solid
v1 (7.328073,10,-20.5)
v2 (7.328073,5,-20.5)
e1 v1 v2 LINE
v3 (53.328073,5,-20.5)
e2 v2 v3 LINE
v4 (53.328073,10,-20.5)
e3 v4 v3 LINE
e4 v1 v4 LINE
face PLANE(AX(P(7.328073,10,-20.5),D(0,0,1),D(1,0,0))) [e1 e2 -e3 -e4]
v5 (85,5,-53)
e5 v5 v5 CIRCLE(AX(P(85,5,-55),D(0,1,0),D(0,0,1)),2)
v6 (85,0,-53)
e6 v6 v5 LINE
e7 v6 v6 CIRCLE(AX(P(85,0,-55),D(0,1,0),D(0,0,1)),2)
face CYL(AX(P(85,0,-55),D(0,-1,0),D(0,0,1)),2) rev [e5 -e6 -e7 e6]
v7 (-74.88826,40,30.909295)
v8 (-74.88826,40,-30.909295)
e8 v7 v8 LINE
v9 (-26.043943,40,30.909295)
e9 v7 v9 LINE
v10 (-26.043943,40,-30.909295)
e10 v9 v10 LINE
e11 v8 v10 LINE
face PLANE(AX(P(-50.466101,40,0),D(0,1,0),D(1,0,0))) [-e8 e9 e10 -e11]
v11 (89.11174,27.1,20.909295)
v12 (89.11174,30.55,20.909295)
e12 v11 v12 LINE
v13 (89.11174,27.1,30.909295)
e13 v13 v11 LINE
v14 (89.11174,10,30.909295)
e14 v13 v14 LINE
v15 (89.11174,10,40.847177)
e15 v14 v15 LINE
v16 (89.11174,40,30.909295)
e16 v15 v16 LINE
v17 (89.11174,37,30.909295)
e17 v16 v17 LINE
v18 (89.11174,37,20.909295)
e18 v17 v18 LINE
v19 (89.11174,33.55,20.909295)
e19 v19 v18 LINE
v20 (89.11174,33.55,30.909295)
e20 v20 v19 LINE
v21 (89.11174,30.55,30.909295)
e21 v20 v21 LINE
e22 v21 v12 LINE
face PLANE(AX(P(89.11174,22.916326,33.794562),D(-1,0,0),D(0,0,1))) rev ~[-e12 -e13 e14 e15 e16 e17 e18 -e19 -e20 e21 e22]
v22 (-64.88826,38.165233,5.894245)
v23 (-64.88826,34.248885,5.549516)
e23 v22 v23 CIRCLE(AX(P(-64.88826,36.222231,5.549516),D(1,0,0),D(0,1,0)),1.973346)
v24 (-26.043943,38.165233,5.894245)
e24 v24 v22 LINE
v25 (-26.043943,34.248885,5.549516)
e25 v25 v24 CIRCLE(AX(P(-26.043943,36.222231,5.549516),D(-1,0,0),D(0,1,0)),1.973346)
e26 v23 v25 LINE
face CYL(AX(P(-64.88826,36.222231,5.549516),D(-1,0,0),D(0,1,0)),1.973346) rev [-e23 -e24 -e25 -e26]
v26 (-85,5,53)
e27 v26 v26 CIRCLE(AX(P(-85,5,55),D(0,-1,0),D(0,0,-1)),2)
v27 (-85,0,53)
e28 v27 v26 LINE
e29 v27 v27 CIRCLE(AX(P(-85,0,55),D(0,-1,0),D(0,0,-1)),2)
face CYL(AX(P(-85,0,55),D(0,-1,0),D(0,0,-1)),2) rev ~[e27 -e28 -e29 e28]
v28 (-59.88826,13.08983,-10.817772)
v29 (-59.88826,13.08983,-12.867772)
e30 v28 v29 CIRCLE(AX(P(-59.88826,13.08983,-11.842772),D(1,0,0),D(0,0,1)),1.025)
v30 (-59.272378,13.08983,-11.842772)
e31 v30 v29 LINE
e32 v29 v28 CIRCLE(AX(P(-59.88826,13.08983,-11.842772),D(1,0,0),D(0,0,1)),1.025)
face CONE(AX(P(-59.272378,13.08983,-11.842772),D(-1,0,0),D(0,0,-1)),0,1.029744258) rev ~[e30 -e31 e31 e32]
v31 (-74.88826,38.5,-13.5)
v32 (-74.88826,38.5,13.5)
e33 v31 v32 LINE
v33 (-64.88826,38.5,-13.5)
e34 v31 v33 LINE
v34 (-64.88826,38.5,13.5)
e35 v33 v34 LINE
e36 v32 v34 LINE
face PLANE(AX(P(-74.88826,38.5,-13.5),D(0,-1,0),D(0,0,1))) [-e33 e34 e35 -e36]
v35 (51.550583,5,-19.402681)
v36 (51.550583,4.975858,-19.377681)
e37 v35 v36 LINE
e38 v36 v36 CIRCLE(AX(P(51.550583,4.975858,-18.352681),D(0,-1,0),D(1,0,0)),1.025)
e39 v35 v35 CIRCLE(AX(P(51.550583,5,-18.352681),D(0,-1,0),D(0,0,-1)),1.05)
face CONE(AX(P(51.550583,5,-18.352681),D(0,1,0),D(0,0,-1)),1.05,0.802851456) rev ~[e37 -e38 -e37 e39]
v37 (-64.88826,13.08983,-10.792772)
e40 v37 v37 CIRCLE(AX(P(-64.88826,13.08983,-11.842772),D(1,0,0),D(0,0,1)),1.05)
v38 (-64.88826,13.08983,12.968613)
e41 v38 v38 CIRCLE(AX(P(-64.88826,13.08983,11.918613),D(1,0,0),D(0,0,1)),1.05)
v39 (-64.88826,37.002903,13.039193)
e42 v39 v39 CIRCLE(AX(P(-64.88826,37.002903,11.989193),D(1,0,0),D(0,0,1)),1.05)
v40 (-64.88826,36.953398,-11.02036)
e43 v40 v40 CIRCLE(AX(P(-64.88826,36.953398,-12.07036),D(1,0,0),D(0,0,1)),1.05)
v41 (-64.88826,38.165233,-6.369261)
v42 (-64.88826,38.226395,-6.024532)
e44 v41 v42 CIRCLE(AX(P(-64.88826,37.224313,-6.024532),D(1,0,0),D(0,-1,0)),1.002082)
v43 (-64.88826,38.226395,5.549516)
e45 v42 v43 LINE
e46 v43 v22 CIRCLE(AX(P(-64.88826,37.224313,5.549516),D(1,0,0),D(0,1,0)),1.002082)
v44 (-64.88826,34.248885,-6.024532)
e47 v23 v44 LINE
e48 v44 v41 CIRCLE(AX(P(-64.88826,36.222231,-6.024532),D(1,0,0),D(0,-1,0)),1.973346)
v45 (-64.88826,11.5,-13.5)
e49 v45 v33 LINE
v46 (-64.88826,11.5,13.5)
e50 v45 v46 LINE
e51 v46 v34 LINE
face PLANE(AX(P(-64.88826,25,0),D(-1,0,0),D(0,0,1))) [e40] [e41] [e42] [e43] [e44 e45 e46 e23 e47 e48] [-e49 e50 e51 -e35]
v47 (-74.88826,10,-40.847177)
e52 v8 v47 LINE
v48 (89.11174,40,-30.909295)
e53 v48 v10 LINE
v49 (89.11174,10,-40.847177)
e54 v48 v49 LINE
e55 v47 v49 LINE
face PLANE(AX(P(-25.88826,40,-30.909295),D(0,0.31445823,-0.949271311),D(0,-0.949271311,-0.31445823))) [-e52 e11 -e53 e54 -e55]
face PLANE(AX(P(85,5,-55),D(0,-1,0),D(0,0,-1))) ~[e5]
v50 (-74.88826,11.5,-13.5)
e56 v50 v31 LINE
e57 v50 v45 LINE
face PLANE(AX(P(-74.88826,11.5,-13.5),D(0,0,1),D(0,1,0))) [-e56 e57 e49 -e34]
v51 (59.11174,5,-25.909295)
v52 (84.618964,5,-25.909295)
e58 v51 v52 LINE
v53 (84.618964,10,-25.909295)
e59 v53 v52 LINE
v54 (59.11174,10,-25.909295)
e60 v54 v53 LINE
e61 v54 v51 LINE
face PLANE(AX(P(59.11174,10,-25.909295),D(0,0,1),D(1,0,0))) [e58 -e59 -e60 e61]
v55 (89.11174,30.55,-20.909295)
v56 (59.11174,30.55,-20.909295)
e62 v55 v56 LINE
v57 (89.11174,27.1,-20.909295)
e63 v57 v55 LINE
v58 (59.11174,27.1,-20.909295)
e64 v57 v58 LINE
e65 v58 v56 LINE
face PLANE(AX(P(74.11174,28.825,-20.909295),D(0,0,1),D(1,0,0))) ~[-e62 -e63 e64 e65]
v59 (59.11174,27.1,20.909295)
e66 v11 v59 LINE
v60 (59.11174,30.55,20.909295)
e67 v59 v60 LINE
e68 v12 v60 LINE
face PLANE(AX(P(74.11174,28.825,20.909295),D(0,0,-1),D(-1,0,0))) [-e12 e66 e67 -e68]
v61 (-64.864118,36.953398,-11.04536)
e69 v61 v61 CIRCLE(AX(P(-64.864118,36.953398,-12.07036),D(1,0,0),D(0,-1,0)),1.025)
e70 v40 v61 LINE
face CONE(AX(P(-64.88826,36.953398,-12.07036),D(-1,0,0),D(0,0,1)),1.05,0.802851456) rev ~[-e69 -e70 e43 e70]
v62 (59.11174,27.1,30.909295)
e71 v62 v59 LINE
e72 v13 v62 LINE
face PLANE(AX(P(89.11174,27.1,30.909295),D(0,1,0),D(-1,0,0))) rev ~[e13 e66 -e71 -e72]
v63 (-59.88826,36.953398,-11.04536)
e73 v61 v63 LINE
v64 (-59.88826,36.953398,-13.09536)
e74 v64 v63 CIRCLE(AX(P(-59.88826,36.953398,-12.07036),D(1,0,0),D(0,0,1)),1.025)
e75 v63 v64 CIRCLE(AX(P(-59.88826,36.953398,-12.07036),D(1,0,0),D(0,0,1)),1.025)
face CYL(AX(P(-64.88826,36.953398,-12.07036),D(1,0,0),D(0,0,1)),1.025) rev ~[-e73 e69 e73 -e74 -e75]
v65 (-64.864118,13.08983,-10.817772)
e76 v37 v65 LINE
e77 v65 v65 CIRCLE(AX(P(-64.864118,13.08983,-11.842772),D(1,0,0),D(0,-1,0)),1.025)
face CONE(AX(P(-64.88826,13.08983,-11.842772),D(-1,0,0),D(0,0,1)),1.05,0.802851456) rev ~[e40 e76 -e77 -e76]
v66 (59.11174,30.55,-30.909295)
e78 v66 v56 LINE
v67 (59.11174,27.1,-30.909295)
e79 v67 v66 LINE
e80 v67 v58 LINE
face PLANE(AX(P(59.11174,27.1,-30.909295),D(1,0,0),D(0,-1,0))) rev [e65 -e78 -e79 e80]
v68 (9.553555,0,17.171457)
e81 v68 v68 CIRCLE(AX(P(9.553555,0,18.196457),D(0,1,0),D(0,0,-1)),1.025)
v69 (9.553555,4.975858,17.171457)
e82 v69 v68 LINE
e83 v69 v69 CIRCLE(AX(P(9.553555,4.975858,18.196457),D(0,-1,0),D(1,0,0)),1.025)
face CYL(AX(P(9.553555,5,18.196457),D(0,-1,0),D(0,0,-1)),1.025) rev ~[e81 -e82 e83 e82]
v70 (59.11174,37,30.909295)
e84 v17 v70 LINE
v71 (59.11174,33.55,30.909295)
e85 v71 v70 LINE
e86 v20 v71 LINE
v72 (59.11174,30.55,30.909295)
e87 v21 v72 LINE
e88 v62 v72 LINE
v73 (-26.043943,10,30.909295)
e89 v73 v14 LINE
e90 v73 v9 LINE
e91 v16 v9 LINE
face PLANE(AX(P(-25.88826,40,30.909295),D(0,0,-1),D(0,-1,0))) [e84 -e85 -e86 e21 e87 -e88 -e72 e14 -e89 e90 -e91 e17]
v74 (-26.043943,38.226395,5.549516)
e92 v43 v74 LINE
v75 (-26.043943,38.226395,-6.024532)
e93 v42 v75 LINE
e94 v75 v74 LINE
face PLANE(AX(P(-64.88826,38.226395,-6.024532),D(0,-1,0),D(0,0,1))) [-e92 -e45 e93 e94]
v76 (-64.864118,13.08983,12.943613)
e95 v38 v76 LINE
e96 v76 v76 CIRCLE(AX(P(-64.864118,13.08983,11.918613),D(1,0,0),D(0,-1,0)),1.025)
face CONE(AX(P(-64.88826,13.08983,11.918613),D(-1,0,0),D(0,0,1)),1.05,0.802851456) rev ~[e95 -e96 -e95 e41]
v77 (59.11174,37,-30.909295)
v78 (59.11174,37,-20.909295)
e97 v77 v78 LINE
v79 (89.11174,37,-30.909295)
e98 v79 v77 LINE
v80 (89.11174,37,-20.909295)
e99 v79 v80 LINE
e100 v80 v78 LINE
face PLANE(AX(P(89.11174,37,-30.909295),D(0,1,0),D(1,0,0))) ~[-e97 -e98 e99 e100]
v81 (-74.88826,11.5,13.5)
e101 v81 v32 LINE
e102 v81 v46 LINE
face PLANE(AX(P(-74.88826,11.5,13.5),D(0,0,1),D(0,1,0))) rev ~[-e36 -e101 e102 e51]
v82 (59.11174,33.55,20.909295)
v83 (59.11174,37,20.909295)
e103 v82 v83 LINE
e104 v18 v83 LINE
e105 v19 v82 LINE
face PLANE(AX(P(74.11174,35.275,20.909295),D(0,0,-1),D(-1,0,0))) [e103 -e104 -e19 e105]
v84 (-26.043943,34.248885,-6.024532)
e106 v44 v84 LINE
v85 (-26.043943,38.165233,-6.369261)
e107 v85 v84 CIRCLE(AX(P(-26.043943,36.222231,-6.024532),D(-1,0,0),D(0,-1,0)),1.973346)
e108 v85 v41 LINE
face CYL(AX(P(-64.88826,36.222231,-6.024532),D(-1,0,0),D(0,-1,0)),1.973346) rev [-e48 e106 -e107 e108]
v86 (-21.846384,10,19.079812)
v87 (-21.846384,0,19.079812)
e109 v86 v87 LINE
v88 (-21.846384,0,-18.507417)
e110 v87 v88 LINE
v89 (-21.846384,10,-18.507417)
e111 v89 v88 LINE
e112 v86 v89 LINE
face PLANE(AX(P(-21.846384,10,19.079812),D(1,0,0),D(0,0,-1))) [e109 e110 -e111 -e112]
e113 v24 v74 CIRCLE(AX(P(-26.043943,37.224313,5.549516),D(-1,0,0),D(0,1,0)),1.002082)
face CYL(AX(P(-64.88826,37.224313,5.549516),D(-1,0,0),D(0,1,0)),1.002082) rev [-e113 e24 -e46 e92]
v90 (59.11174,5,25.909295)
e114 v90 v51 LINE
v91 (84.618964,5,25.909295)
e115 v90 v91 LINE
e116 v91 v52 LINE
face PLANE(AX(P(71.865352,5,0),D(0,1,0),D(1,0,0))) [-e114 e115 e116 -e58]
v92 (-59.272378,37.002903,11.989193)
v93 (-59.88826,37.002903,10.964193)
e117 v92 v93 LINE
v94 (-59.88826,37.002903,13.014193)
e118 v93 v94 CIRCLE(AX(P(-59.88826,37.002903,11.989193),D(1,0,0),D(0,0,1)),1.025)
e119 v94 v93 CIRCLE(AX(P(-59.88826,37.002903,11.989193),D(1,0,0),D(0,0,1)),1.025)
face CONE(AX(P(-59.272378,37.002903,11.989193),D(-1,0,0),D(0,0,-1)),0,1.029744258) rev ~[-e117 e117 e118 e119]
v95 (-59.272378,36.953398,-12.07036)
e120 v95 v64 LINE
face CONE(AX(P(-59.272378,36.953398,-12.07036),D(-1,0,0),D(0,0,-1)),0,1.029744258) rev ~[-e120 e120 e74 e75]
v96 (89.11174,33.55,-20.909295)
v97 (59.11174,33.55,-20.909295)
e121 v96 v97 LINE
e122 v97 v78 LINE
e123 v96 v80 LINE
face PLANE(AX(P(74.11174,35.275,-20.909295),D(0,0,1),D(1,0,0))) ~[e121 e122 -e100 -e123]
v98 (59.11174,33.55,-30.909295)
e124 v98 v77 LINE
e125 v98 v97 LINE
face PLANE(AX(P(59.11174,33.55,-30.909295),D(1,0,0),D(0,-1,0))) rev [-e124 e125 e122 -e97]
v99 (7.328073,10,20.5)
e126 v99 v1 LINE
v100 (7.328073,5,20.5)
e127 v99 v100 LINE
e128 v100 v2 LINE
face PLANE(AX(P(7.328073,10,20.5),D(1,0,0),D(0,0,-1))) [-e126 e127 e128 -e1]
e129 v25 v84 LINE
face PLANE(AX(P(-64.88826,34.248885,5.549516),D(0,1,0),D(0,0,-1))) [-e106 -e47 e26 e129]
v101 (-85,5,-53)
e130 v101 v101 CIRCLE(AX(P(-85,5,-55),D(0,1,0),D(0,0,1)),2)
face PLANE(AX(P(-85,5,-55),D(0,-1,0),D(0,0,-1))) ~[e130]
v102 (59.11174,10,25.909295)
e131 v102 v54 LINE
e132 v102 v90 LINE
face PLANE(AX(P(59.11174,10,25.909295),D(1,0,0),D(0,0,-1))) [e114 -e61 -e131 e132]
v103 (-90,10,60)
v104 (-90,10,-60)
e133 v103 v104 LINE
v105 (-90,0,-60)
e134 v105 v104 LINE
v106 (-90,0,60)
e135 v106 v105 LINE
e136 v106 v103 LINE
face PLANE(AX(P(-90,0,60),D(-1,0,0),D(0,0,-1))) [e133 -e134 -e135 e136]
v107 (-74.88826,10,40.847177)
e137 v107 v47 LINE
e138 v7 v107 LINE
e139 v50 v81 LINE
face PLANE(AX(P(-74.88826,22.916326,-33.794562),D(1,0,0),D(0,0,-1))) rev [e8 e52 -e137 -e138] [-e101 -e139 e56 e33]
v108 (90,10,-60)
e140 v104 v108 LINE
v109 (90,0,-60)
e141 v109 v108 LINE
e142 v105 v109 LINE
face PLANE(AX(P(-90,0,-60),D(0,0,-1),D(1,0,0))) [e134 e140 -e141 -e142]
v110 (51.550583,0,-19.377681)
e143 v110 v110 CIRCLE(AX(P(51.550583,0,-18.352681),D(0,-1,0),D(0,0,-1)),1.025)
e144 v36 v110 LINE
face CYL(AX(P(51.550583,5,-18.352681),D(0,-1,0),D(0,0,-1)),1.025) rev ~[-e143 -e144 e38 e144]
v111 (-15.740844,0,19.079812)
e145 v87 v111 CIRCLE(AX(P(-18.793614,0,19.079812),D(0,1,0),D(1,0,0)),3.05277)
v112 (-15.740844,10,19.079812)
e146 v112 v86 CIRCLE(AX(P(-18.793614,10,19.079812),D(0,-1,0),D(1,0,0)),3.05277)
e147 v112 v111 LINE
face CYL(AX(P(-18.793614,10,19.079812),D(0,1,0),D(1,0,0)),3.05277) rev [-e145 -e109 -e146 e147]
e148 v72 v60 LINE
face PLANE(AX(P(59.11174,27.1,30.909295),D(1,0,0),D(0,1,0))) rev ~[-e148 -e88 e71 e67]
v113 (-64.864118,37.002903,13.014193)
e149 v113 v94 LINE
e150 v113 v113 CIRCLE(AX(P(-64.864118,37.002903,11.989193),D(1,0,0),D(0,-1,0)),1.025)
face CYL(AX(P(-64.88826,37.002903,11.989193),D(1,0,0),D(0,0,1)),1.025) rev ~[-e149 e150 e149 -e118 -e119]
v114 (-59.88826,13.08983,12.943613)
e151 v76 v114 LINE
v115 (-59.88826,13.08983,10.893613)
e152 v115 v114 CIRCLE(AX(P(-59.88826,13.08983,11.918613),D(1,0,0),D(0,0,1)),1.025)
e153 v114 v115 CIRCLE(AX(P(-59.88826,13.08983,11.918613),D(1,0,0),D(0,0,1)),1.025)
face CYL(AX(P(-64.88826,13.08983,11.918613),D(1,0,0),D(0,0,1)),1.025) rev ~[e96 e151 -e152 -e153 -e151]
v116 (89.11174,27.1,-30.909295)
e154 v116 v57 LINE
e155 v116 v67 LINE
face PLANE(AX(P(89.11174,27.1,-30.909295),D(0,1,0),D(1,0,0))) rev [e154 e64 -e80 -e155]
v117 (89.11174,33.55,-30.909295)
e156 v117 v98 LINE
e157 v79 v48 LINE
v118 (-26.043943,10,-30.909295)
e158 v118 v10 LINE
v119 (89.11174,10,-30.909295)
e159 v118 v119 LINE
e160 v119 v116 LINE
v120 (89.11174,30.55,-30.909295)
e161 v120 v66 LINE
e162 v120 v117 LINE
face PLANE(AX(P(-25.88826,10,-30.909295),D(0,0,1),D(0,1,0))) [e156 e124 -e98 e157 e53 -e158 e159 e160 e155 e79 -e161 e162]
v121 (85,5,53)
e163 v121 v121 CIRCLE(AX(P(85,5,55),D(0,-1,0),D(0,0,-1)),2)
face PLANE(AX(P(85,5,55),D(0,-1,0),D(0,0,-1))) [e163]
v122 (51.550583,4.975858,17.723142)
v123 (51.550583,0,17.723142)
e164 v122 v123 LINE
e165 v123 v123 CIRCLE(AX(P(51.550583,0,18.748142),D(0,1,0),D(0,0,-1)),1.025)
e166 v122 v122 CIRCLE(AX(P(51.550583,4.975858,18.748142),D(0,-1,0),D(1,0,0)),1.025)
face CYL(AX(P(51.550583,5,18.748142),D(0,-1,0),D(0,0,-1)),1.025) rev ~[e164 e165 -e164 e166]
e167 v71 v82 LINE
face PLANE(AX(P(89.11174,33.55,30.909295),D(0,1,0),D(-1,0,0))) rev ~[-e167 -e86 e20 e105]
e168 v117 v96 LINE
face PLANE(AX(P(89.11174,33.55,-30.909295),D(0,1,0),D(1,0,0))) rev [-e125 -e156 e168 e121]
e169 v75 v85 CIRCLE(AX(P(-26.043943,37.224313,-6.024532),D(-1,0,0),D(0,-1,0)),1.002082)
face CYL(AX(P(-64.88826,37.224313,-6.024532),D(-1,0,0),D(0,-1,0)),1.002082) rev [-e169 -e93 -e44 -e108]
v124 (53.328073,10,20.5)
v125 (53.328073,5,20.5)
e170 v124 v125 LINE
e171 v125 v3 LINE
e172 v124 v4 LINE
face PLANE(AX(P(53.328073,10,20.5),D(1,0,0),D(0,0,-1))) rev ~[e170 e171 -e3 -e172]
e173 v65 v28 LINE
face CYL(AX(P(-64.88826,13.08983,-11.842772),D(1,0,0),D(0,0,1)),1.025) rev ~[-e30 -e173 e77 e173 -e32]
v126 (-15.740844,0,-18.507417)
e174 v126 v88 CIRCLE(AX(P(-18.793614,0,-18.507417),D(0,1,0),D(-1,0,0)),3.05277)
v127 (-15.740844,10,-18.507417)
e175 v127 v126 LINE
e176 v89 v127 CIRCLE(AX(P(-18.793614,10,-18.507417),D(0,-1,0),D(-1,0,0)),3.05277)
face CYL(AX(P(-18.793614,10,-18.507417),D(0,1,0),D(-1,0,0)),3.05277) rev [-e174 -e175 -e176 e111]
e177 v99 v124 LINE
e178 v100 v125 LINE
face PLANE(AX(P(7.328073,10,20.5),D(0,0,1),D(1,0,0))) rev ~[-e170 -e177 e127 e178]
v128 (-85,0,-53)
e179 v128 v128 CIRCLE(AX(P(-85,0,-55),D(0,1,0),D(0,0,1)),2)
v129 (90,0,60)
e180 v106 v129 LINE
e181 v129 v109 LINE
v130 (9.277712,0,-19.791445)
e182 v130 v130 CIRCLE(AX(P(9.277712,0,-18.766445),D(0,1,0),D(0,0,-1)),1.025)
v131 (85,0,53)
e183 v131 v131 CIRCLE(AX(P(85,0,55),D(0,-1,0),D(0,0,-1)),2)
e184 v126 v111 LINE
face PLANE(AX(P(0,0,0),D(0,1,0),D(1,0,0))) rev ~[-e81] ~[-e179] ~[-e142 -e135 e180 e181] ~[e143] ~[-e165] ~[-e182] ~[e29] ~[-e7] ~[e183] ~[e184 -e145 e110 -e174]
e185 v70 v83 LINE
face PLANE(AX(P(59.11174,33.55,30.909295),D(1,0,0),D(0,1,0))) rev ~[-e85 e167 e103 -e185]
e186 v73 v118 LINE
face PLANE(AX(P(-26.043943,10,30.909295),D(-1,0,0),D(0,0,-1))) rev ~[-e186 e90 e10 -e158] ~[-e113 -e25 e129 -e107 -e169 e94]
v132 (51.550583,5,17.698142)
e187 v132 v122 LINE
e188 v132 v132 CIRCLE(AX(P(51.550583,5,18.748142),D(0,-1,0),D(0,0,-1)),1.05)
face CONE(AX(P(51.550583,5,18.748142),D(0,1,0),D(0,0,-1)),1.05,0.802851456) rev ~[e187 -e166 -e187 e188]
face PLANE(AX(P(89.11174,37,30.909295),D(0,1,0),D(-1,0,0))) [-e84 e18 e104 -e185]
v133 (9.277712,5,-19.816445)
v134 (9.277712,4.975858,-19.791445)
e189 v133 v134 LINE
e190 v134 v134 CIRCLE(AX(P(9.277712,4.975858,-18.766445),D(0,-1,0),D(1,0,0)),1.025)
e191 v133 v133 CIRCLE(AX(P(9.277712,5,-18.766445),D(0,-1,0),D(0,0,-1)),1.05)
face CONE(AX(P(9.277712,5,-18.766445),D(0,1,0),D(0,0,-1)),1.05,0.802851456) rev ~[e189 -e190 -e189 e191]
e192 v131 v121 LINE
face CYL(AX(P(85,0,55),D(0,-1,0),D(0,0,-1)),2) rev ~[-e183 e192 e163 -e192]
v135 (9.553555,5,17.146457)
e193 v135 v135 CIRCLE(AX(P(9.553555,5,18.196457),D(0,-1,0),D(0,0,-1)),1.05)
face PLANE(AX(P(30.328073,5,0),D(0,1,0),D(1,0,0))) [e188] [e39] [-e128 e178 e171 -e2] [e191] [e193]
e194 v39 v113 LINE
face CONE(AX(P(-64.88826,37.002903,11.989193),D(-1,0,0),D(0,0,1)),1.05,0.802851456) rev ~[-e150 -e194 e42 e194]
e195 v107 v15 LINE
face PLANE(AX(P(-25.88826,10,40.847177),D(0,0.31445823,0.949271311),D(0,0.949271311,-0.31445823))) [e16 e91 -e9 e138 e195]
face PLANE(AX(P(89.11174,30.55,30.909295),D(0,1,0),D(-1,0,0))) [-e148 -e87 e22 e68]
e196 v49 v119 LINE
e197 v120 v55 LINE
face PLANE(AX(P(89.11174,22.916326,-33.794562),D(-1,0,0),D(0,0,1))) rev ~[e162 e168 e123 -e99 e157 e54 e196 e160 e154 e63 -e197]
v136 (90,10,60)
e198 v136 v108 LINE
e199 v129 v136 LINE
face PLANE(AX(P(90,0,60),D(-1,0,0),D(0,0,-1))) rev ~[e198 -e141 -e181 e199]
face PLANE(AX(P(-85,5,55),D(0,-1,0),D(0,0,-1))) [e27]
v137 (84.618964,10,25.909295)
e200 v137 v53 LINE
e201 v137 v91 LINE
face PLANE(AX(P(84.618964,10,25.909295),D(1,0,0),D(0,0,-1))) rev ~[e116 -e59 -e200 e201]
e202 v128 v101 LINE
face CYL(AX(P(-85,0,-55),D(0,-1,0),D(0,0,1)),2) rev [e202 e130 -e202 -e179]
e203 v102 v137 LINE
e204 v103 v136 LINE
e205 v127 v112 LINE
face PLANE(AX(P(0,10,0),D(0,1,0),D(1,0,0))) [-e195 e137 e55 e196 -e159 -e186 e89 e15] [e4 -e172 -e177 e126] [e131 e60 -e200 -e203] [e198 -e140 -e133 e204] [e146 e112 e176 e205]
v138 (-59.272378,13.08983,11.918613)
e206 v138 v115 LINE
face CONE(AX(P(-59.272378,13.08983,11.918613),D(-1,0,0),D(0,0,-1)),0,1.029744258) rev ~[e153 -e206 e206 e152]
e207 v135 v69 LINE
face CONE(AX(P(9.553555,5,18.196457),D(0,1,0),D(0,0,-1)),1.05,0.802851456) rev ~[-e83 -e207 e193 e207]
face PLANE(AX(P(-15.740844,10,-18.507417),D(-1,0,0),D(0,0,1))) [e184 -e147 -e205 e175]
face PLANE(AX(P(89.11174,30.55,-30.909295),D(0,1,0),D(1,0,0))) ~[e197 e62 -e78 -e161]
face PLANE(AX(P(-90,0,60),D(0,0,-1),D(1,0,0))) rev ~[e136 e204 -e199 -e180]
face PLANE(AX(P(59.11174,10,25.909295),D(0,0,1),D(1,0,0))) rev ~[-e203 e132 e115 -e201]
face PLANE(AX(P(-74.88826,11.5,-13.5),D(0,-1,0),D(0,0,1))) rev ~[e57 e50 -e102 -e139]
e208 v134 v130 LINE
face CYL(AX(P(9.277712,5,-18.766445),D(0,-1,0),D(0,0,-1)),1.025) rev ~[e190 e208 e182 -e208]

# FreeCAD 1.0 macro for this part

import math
import FreeCAD as App
import Part
import Sketcher
from FreeCAD import Vector

doc = App.newDocument("Part")
body = doc.addObject("PartDesign::Body", "Body")

# Sketch on XZ plane
sketch1 = doc.addObject("Sketcher::SketchObject", "Sketch")
body.addObject(sketch1)
sketch1.AttachmentSupport = (doc.XZ_Plane, [""])
sketch1.MapMode = "FlatFace"
sketch1.addGeometry([
    Part.LineSegment(Vector(-90, -60, 0), Vector(-90, 60, 0)),
    Part.LineSegment(Vector(-90, 60, 0), Vector(90, 60, 0)),
    Part.LineSegment(Vector(90, 60, 0), Vector(90, -60, 0)),
    Part.LineSegment(Vector(90, -60, 0), Vector(-90, -60, 0)),
], False)
sketch1.addConstraint([
    Sketcher.Constraint("Coincident", 0, 2, 1, 1),
    Sketcher.Constraint("Coincident", 1, 2, 2, 1),
    Sketcher.Constraint("Coincident", 2, 2, 3, 1),
    Sketcher.Constraint("Coincident", 3, 2, 0, 1),
    Sketcher.Constraint("Vertical", 0),
    Sketcher.Constraint("Horizontal", 1),
    Sketcher.Constraint("Vertical", 2),
    Sketcher.Constraint("Horizontal", 3),
    Sketcher.Constraint("Symmetric", 0, 2, 2, 2, -1, 1),
    Sketcher.Constraint("DistanceX", 1, 1, 1, 2, 180.0),
    Sketcher.Constraint("DistanceY", 0, 1, 0, 2, 120.0),
])
pad1 = doc.addObject("PartDesign::Pad", "Pad")
body.addObject(pad1)
pad1.Profile = sketch1
pad1.Length = 10
pad1.Reversed = True

# Sketch on XZ plane
sketch2 = doc.addObject("Sketcher::SketchObject", "Sketch001")
body.addObject(sketch2)
sketch2.AttachmentSupport = (doc.XZ_Plane, [""])
sketch2.MapMode = "FlatFace"
sketch2.AttachmentOffset = App.Placement(Vector(0, 0, -10), App.Rotation())
sketch2.addGeometry([
    Part.LineSegment(Vector(-75, -31, 0), Vector(-75, 31, 0)),
    Part.LineSegment(Vector(-75, 31, 0), Vector(-26, 31, 0)),
    Part.LineSegment(Vector(-26, 31, 0), Vector(-26, -31, 0)),
    Part.LineSegment(Vector(-26, -31, 0), Vector(-75, -31, 0)),
], False)
sketch2.addConstraint([
    Sketcher.Constraint("Coincident", 0, 2, 1, 1),
    Sketcher.Constraint("Coincident", 1, 2, 2, 1),
    Sketcher.Constraint("Coincident", 2, 2, 3, 1),
    Sketcher.Constraint("Coincident", 3, 2, 0, 1),
    Sketcher.Constraint("Vertical", 0),
    Sketcher.Constraint("Horizontal", 1),
    Sketcher.Constraint("Vertical", 2),
    Sketcher.Constraint("Horizontal", 3),
    Sketcher.Constraint("DistanceY", 0, 1, 0, 2, 61.818589),
    Sketcher.Constraint("DistanceX", 1, 1, 1, 2, 48.844317),
    Sketcher.Constraint("DistanceX", 0, 2, -1, 1, 74.88826),
    Sketcher.Constraint("DistanceY", -1, 1, 0, 2, 30.909295),
])
pad2 = doc.addObject("PartDesign::Pad", "Pad001")
body.addObject(pad2)
pad2.Profile = sketch2
pad2.Length = 30
pad2.Reversed = True

# Sketch on YZ plane
sketch3 = doc.addObject("Sketcher::SketchObject", "Sketch002")
body.addObject(sketch3)
sketch3.AttachmentSupport = (doc.YZ_Plane, [""])
sketch3.MapMode = "FlatFace"
sketch3.AttachmentOffset = App.Placement(Vector(0, 0, -74.88826), App.Rotation())
sketch3.addGeometry([
    Part.LineSegment(Vector(38, -14, 0), Vector(12, -14, 0)),
    Part.LineSegment(Vector(12, -14, 0), Vector(12, 14, 0)),
    Part.LineSegment(Vector(12, 14, 0), Vector(38, 14, 0)),
    Part.LineSegment(Vector(38, 14, 0), Vector(38, -14, 0)),
], False)
sketch3.addConstraint([
    Sketcher.Constraint("Coincident", 0, 2, 1, 1),
    Sketcher.Constraint("Coincident", 1, 2, 2, 1),
    Sketcher.Constraint("Coincident", 2, 2, 3, 1),
    Sketcher.Constraint("Coincident", 3, 2, 0, 1),
    Sketcher.Constraint("Horizontal", 0),
    Sketcher.Constraint("Vertical", 1),
    Sketcher.Constraint("Horizontal", 2),
    Sketcher.Constraint("Vertical", 3),
    Sketcher.Constraint("Equal", 2, 1),
    Sketcher.Constraint("DistanceX", 0, 2, 0, 1, 27.0),
    Sketcher.Constraint("DistanceX", -1, 1, 0, 2, 11.5),
    Sketcher.Constraint("DistanceY", 0, 2, -1, 1, 13.5),
])
pocket1 = doc.addObject("PartDesign::Pocket", "Pocket")
body.addObject(pocket1)
pocket1.Profile = sketch3
pocket1.Length = 10
pocket1.Reversed = True

# Sketch on YZ plane
sketch4 = doc.addObject("Sketcher::SketchObject", "Sketch003")
body.addObject(sketch4)
sketch4.AttachmentSupport = (doc.YZ_Plane, [""])
sketch4.MapMode = "FlatFace"
sketch4.AttachmentOffset = App.Placement(Vector(0, 0, -64.88826), App.Rotation())
sketch4.addGeometry([
    Part.LineSegment(Vector(38.2, 5.5, 0), Vector(38.2, -6, 0)),
    Part.ArcOfCircle(Part.Circle(Vector(37.2, -6, 0), Vector(0, 0, 1), 1), math.radians(180), math.radians(360)),
    Part.LineSegment(Vector(36.2, -6, 0), Vector(36.2, 5.5, 0)),
    Part.ArcOfCircle(Part.Circle(Vector(37.2, 5.5, 0), Vector(0, 0, 1), 1), math.radians(0), math.radians(180)),
], False)
sketch4.addConstraint([
    Sketcher.Constraint("Tangent", 0, 2, 1, 2),
    Sketcher.Constraint("Tangent", 1, 1, 2, 1),
    Sketcher.Constraint("Tangent", 2, 2, 3, 2),
    Sketcher.Constraint("Tangent", 3, 1, 0, 1),
    Sketcher.Constraint("Vertical", 0),
    Sketcher.Constraint("Vertical", 2),
    Sketcher.Constraint("Radius", 1, 1.002082),
    Sketcher.Constraint("DistanceY", 0, 2, 0, 1, 11.574048),
    Sketcher.Constraint("DistanceY", 1, 3, -1, 1, 6.024532),
    Sketcher.Constraint("DistanceX", -1, 1, 1, 1, 36.222231),
])
pocket2 = doc.addObject("PartDesign::Pocket", "Pocket001")
body.addObject(pocket2)
pocket2.Profile = sketch4
pocket2.Type = "ThroughAll"
pocket2.Reversed = True

# Sketch on YZ plane
sketch5 = doc.addObject("Sketcher::SketchObject", "Sketch004")
body.addObject(sketch5)
sketch5.AttachmentSupport = (doc.YZ_Plane, [""])
sketch5.MapMode = "FlatFace"
sketch5.AttachmentOffset = App.Placement(Vector(0, 0, -64.88826), App.Rotation())
sketch5.addGeometry([
    Part.Circle(Vector(37, -12.1, 0), Vector(0, 0, 1), 1),
    Part.Circle(Vector(37, 12, 0), Vector(0, 0, 1), 1),
    Part.Circle(Vector(13.1, 11.9, 0), Vector(0, 0, 1), 1),
    Part.Circle(Vector(13.1, -11.8, 0), Vector(0, 0, 1), 1),
], False)
sketch5.addConstraint([
    Sketcher.Constraint("Equal", 0, 1),
    Sketcher.Constraint("Equal", 1, 2),
    Sketcher.Constraint("Equal", 2, 3),
    Sketcher.Constraint("Vertical", 2, 3, 3, 3),
    Sketcher.Constraint("Diameter", 0, 2.05),
    Sketcher.Constraint("DistanceY", 0, 3, -1, 1, 12.07036),
    Sketcher.Constraint("DistanceX", -1, 1, 2, 3, 13.08983),
    Sketcher.Constraint("DistanceY", 3, 3, -1, 1, 11.842772),
    Sketcher.Constraint("DistanceY", 2, 3, 1, 3, 0.07058),
    Sketcher.Constraint("DistanceX", -1, 1, 0, 3, 36.953398),
    Sketcher.Constraint("DistanceX", -1, 1, 1, 3, 37.002903),
    Sketcher.Constraint("DistanceY", -1, 1, 1, 3, 11.989193),
])
doc.recompute()
hole = doc.addObject("PartDesign::Hole", "Hole")
body.addObject(hole)
hole.Profile = sketch5
hole.ThreadType = "None"
hole.Diameter = 2.05
hole.DepthType = "Dimension"
hole.Depth = 5
hole.DrillPoint = "Angled"
hole.DrillPointAngle = 118
hole.HoleCutType = "Countersink"
hole.HoleCutDiameter = 2.1
hole.HoleCutCountersinkAngle = 92
hole.Reversed = True

# Sketch on XZ plane
sketch6 = doc.addObject("Sketcher::SketchObject", "Sketch005")
body.addObject(sketch6)
sketch6.AttachmentSupport = (doc.XZ_Plane, [""])
sketch6.MapMode = "FlatFace"
sketch6.AttachmentOffset = App.Placement(Vector(0, 0, -10), App.Rotation())
sketch6.addGeometry([
    Part.LineSegment(Vector(-21.8, -18.5, 0), Vector(-21.8, 19.1, 0)),
    Part.ArcOfCircle(Part.Circle(Vector(-18.8, 19.1, 0), Vector(0, 0, 1), 3.1), math.radians(0), math.radians(180)),
    Part.LineSegment(Vector(-15.7, 19.1, 0), Vector(-15.7, -18.5, 0)),
    Part.ArcOfCircle(Part.Circle(Vector(-18.8, -18.5, 0), Vector(0, 0, 1), 3.1), math.radians(180), math.radians(360)),
], False)
sketch6.addConstraint([
    Sketcher.Constraint("Tangent", 0, 2, 1, 2),
    Sketcher.Constraint("Tangent", 1, 1, 2, 1),
    Sketcher.Constraint("Tangent", 2, 2, 3, 2),
    Sketcher.Constraint("Tangent", 3, 1, 0, 1),
    Sketcher.Constraint("Vertical", 0),
    Sketcher.Constraint("Vertical", 2),
    Sketcher.Constraint("Radius", 1, 3.05277),
    Sketcher.Constraint("DistanceY", 0, 1, 0, 2, 37.587229),
    Sketcher.Constraint("DistanceY", -1, 1, 1, 3, 19.079812),
    Sketcher.Constraint("DistanceX", 1, 3, -1, 1, 18.793614),
])
pocket3 = doc.addObject("PartDesign::Pocket", "Pocket002")
body.addObject(pocket3)
pocket3.Profile = sketch6
pocket3.Type = "ThroughAll"
pocket3.Reversed = True

# Sketch on YZ plane
sketch7 = doc.addObject("Sketcher::SketchObject", "Sketch006")
body.addObject(sketch7)
sketch7.AttachmentSupport = (doc.YZ_Plane, [""])
sketch7.MapMode = "FlatFace"
sketch7.AttachmentOffset = App.Placement(Vector(0, 0, -74.88826), App.Rotation())
sketch7.addGeometry([
    Part.LineSegment(Vector(40, 31, 0), Vector(10, 31, 0)),
    Part.LineSegment(Vector(10, 31, 0), Vector(10, 41, 0)),
    Part.LineSegment(Vector(10, 41, 0), Vector(40, 31, 0)),
], False)
sketch7.addConstraint([
    Sketcher.Constraint("Coincident", 0, 2, 1, 1),
    Sketcher.Constraint("Coincident", 1, 2, 2, 1),
    Sketcher.Constraint("Coincident", 2, 2, 0, 1),
    Sketcher.Constraint("Horizontal", 0),
    Sketcher.Constraint("Vertical", 1),
    Sketcher.Constraint("DistanceX", 0, 2, 0, 1, 30.0),
    Sketcher.Constraint("DistanceX", -1, 1, 0, 2, 10.0),
    Sketcher.Constraint("Distance", 2, 31.603188),
    Sketcher.Constraint("DistanceY", -1, 1, 0, 2, 30.909295),
])
pad3 = doc.addObject("PartDesign::Pad", "Pad002")
body.addObject(pad3)
pad3.Profile = sketch7
pad3.Length = 49
doc.recompute()

mirrored = doc.addObject("PartDesign::Mirrored", "Mirrored")
body.addObject(mirrored)
mirrored.Originals = [pad3]
mirrored.MirrorPlane = (doc.XY_Plane, [""])
body.Tip = mirrored

# Sketch on XZ plane
sketch8 = doc.addObject("Sketcher::SketchObject", "Sketch007")
body.addObject(sketch8)
sketch8.AttachmentSupport = (doc.XZ_Plane, [""])
sketch8.MapMode = "FlatFace"
sketch8.AttachmentOffset = App.Placement(Vector(0, 0, -10), App.Rotation())
sketch8.addGeometry([
    Part.LineSegment(Vector(7, -20, 0), Vector(7, 20, 0)),
    Part.LineSegment(Vector(7, 20, 0), Vector(53, 20, 0)),
    Part.LineSegment(Vector(53, 20, 0), Vector(53, -20, 0)),
    Part.LineSegment(Vector(53, -20, 0), Vector(7, -20, 0)),
], False)
sketch8.addConstraint([
    Sketcher.Constraint("Coincident", 0, 2, 1, 1),
    Sketcher.Constraint("Coincident", 1, 2, 2, 1),
    Sketcher.Constraint("Coincident", 2, 2, 3, 1),
    Sketcher.Constraint("Coincident", 3, 2, 0, 1),
    Sketcher.Constraint("Vertical", 0),
    Sketcher.Constraint("Horizontal", 1),
    Sketcher.Constraint("Vertical", 2),
    Sketcher.Constraint("Horizontal", 3),
    Sketcher.Constraint("DistanceX", 1, 1, 1, 2, 46.0),
    Sketcher.Constraint("DistanceY", 0, 1, 0, 2, 41.0),
    Sketcher.Constraint("DistanceY", -1, 1, 0, 2, 20.5),
    Sketcher.Constraint("DistanceX", -1, 1, 0, 2, 7.328073),
])
pocket4 = doc.addObject("PartDesign::Pocket", "Pocket003")
body.addObject(pocket4)
pocket4.Profile = sketch8
pocket4.Length = 5
pocket4.Reversed = True

# Sketch on XZ plane
sketch9 = doc.addObject("Sketcher::SketchObject", "Sketch008")
body.addObject(sketch9)
sketch9.AttachmentSupport = (doc.XZ_Plane, [""])
sketch9.MapMode = "FlatFace"
sketch9.AttachmentOffset = App.Placement(Vector(0, 0, -5), App.Rotation())
sketch9.addGeometry([
    Part.Circle(Vector(9.6, 18.2, 0), Vector(0, 0, 1), 1),
    Part.Circle(Vector(9.3, -18.8, 0), Vector(0, 0, 1), 1),
    Part.Circle(Vector(51.6, -18.4, 0), Vector(0, 0, 1), 1),
    Part.Circle(Vector(51.6, 18.7, 0), Vector(0, 0, 1), 1),
], False)
sketch9.addConstraint([
    Sketcher.Constraint("Equal", 0, 1),
    Sketcher.Constraint("Equal", 1, 2),
    Sketcher.Constraint("Equal", 2, 3),
    Sketcher.Constraint("Vertical", 2, 3, 3, 3),
    Sketcher.Constraint("Diameter", 0, 2.05),
    Sketcher.Constraint("DistanceY", 1, 3, 0, 3, 36.962902),
    Sketcher.Constraint("DistanceX", -1, 1, 1, 3, 9.277712),
    Sketcher.Constraint("DistanceY", 2, 3, -1, 1, 18.352681),
    Sketcher.Constraint("DistanceY", -1, 1, 3, 3, 18.748142),
    Sketcher.Constraint("DistanceX", 1, 3, 2, 3, 42.272871),
    Sketcher.Constraint("DistanceX", 0, 3, 2, 3, 41.997028),
    Sketcher.Constraint("DistanceY", -1, 1, 0, 3, 18.196457),
])
doc.recompute()
hole2 = doc.addObject("PartDesign::Hole", "Hole001")
body.addObject(hole2)
hole2.Profile = sketch9
hole2.ThreadType = "None"
hole2.Diameter = 2.05
hole2.DepthType = "Dimension"
hole2.Depth = 5
hole2.DrillPoint = "Angled"
hole2.DrillPointAngle = 118
hole2.HoleCutType = "Countersink"
hole2.HoleCutDiameter = 2.1
hole2.HoleCutCountersinkAngle = 92
hole2.Reversed = True

# Sketch on YZ plane
sketch10 = doc.addObject("Sketcher::SketchObject", "Sketch009")
body.addObject(sketch10)
sketch10.AttachmentSupport = (doc.YZ_Plane, [""])
sketch10.MapMode = "FlatFace"
sketch10.AttachmentOffset = App.Placement(Vector(0, 0, -25.88826), App.Rotation())
sketch10.addGeometry([
    Part.LineSegment(Vector(10, -31, 0), Vector(10, -41, 0)),
    Part.LineSegment(Vector(10, -41, 0), Vector(40, -31, 0)),
    Part.LineSegment(Vector(40, -31, 0), Vector(10, -31, 0)),
], False)
sketch10.addConstraint([
    Sketcher.Constraint("Coincident", 0, 2, 1, 1),
    Sketcher.Constraint("Coincident", 1, 2, 2, 1),
    Sketcher.Constraint("Coincident", 2, 2, 0, 1),
    Sketcher.Constraint("Vertical", 0),
    Sketcher.Constraint("Horizontal", 2),
    Sketcher.Constraint("DistanceX", 2, 2, 2, 1, 30.0),
    Sketcher.Constraint("DistanceX", -1, 1, 0, 2, 10.0),
    Sketcher.Constraint("Distance", 1, 31.603188),
    Sketcher.Constraint("DistanceY", 0, 2, -1, 1, 40.847177),
])
pad4 = doc.addObject("PartDesign::Pad", "Pad003")
body.addObject(pad4)
pad4.Profile = sketch10
pad4.Length = 115

# Sketch on YZ plane
sketch11 = doc.addObject("Sketcher::SketchObject", "Sketch010")
body.addObject(sketch11)
sketch11.AttachmentSupport = (doc.YZ_Plane, [""])
sketch11.MapMode = "FlatFace"
sketch11.AttachmentOffset = App.Placement(Vector(0, 0, -25.88826), App.Rotation())
sketch11.addGeometry([
    Part.LineSegment(Vector(10, 41, 0), Vector(10, 31, 0)),
    Part.LineSegment(Vector(10, 31, 0), Vector(40, 31, 0)),
    Part.LineSegment(Vector(40, 31, 0), Vector(10, 41, 0)),
], False)
sketch11.addConstraint([
    Sketcher.Constraint("Coincident", 0, 2, 1, 1),
    Sketcher.Constraint("Coincident", 1, 2, 2, 1),
    Sketcher.Constraint("Coincident", 2, 2, 0, 1),
    Sketcher.Constraint("Vertical", 0),
    Sketcher.Constraint("Horizontal", 1),
    Sketcher.Constraint("DistanceX", 1, 1, 1, 2, 30.0),
    Sketcher.Constraint("DistanceX", -1, 1, 0, 2, 10.0),
    Sketcher.Constraint("Distance", 2, 31.603188),
    Sketcher.Constraint("DistanceY", -1, 1, 0, 2, 30.909295),
])
pad5 = doc.addObject("PartDesign::Pad", "Pad004")
body.addObject(pad5)
pad5.Profile = sketch11
pad5.Length = 115

# Sketch on XY plane
sketch12 = doc.addObject("Sketcher::SketchObject", "Sketch011")
body.addObject(sketch12)
sketch12.AttachmentSupport = (doc.XY_Plane, [""])
sketch12.MapMode = "FlatFace"
sketch12.AttachmentOffset = App.Placement(Vector(0, 0, 30.909295), App.Rotation())
sketch12.addGeometry([
    Part.LineSegment(Vector(89.1, 37, 0), Vector(89.1, 33.5, 0)),  # 0
    Part.LineSegment(Vector(89.1, 33.5, 0), Vector(59.1, 33.5, 0)),  # 1
    Part.LineSegment(Vector(59.1, 33.5, 0), Vector(59.1, 37, 0)),  # 2
    Part.LineSegment(Vector(59.1, 37, 0), Vector(89.1, 37, 0)),  # 3
    Part.LineSegment(Vector(89.1, 30.6, 0), Vector(89.1, 27.1, 0)),  # 4
    Part.LineSegment(Vector(89.1, 27.1, 0), Vector(59.1, 27.1, 0)),  # 5
    Part.LineSegment(Vector(59.1, 27.1, 0), Vector(59.1, 30.6, 0)),  # 6
    Part.LineSegment(Vector(59.1, 30.6, 0), Vector(89.1, 30.6, 0)),  # 7
], False)
sketch12.addConstraint([
    Sketcher.Constraint("Coincident", 0, 2, 1, 1),
    Sketcher.Constraint("Coincident", 1, 2, 2, 1),
    Sketcher.Constraint("Coincident", 2, 2, 3, 1),
    Sketcher.Constraint("Coincident", 3, 2, 0, 1),
    Sketcher.Constraint("Coincident", 4, 2, 5, 1),
    Sketcher.Constraint("Coincident", 5, 2, 6, 1),
    Sketcher.Constraint("Coincident", 6, 2, 7, 1),
    Sketcher.Constraint("Coincident", 7, 2, 4, 1),
    Sketcher.Constraint("Vertical", 0),
    Sketcher.Constraint("Horizontal", 1),
    Sketcher.Constraint("Vertical", 2),
    Sketcher.Constraint("Horizontal", 3),
    Sketcher.Constraint("Vertical", 4),
    Sketcher.Constraint("Horizontal", 5),
    Sketcher.Constraint("Vertical", 6),
    Sketcher.Constraint("Horizontal", 7),
    Sketcher.Constraint("Vertical", 3, 2, 4, 2),
    Sketcher.Constraint("Vertical", 2, 2, 5, 2),
    Sketcher.Constraint("Equal", 2, 4),
    Sketcher.Constraint("DistanceX", 1, 2, 1, 1, 30.0),
    Sketcher.Constraint("DistanceY", -1, 1, 2, 2, 37.0),
    Sketcher.Constraint("DistanceY", 6, 2, 1, 2, 3.0),
    Sketcher.Constraint("DistanceY", 0, 2, 0, 1, 3.45),
    Sketcher.Constraint("DistanceX", -1, 1, 0, 2, 89.11174),
])
pad6 = doc.addObject("PartDesign::Pad", "Pad005")
body.addObject(pad6)
pad6.Profile = sketch12
pad6.Length = 10
pad6.Reversed = True
doc.recompute()

mirrored2 = doc.addObject("PartDesign::Mirrored", "Mirrored001")
body.addObject(mirrored2)
mirrored2.Originals = [pad6]
mirrored2.MirrorPlane = (doc.XY_Plane, [""])
body.Tip = mirrored2

# Sketch on XZ plane
sketch13 = doc.addObject("Sketcher::SketchObject", "Sketch012")
body.addObject(sketch13)
sketch13.AttachmentSupport = (doc.XZ_Plane, [""])
sketch13.MapMode = "FlatFace"
sketch13.addGeometry(Part.Circle(Vector(-85, 55, 0), Vector(0, 0, 1), 2), False)
sketch13.addConstraint([
    Sketcher.Constraint("Diameter", 0, 4.0),
    Sketcher.Constraint("DistanceX", 0, 3, -1, 1, 85.0),
    Sketcher.Constraint("DistanceY", -1, 1, 0, 3, 55.0),
])
pocket5 = doc.addObject("PartDesign::Pocket", "Pocket004")
body.addObject(pocket5)
pocket5.Profile = sketch13
pocket5.Length = 5

# Sketch on XZ plane
sketch14 = doc.addObject("Sketcher::SketchObject", "Sketch013")
body.addObject(sketch14)
sketch14.AttachmentSupport = (doc.XZ_Plane, [""])
sketch14.MapMode = "FlatFace"
sketch14.addGeometry(Part.Circle(Vector(85, 55, 0), Vector(0, 0, 1), 2), False)
sketch14.addConstraint([
    Sketcher.Constraint("Diameter", 0, 4.0),
    Sketcher.Constraint("DistanceX", -1, 1, 0, 3, 85.0),
    Sketcher.Constraint("DistanceY", -1, 1, 0, 3, 55.0),
])
pocket6 = doc.addObject("PartDesign::Pocket", "Pocket005")
body.addObject(pocket6)
pocket6.Profile = sketch14
pocket6.Length = 5
doc.recompute()

mirrored3 = doc.addObject("PartDesign::Mirrored", "Mirrored002")
body.addObject(mirrored3)
mirrored3.Originals = [pocket5, pocket6]
mirrored3.MirrorPlane = (doc.XY_Plane, [""])
body.Tip = mirrored3

# Sketch on XZ plane
sketch15 = doc.addObject("Sketcher::SketchObject", "Sketch014")
body.addObject(sketch15)
sketch15.AttachmentSupport = (doc.XZ_Plane, [""])
sketch15.MapMode = "FlatFace"
sketch15.AttachmentOffset = App.Placement(Vector(0, 0, -10), App.Rotation())
sketch15.addGeometry([
    Part.LineSegment(Vector(59, -26, 0), Vector(59, 26, 0)),
    Part.LineSegment(Vector(59, 26, 0), Vector(85, 26, 0)),
    Part.LineSegment(Vector(85, 26, 0), Vector(85, -26, 0)),
    Part.LineSegment(Vector(85, -26, 0), Vector(59, -26, 0)),
], False)
sketch15.addConstraint([
    Sketcher.Constraint("Coincident", 0, 2, 1, 1),
    Sketcher.Constraint("Coincident", 1, 2, 2, 1),
    Sketcher.Constraint("Coincident", 2, 2, 3, 1),
    Sketcher.Constraint("Coincident", 3, 2, 0, 1),
    Sketcher.Constraint("Vertical", 0),
    Sketcher.Constraint("Horizontal", 1),
    Sketcher.Constraint("Vertical", 2),
    Sketcher.Constraint("Horizontal", 3),
    Sketcher.Constraint("DistanceY", 0, 1, 0, 2, 51.818589),
    Sketcher.Constraint("DistanceX", 1, 1, 1, 2, 25.507224),
    Sketcher.Constraint("DistanceX", -1, 1, 0, 2, 59.11174),
    Sketcher.Constraint("DistanceY", -1, 1, 0, 2, 25.909295),
])
pocket7 = doc.addObject("PartDesign::Pocket", "Pocket006")
body.addObject(pocket7)
pocket7.Profile = sketch15
pocket7.Length = 5
pocket7.Reversed = True

# Sketch on YZ plane
sketch16 = doc.addObject("Sketcher::SketchObject", "Sketch015")
body.addObject(sketch16)
sketch16.AttachmentSupport = (doc.YZ_Plane, [""])
sketch16.MapMode = "FlatFace"
sketch16.AttachmentOffset = App.Placement(Vector(0, 0, -64.88826), App.Rotation())
sketch16.addGeometry([
    Part.LineSegment(Vector(38.2, 5.5, 0), Vector(38.2, -6, 0)),
    Part.ArcOfCircle(Part.Circle(Vector(36.2, -6, 0), Vector(0, 0, 1), 2), math.radians(180), math.radians(360)),
    Part.LineSegment(Vector(34.2, -6, 0), Vector(34.2, 5.5, 0)),
    Part.ArcOfCircle(Part.Circle(Vector(36.2, 5.5, 0), Vector(0, 0, 1), 2), math.radians(0), math.radians(180)),
], False)
sketch16.addConstraint([
    Sketcher.Constraint("Tangent", 0, 2, 1, 2),
    Sketcher.Constraint("Tangent", 1, 1, 2, 1),
    Sketcher.Constraint("Tangent", 2, 2, 3, 2),
    Sketcher.Constraint("Tangent", 3, 1, 0, 1),
    Sketcher.Constraint("Vertical", 0),
    Sketcher.Constraint("Vertical", 2),
    Sketcher.Constraint("Radius", 1, 1.973346),
    Sketcher.Constraint("DistanceY", 0, 2, 0, 1, 11.574048),
    Sketcher.Constraint("DistanceX", -1, 1, 1, 3, 36.222231),
    Sketcher.Constraint("DistanceY", 1, 3, -1, 1, 6.024532),
])
pocket8 = doc.addObject("PartDesign::Pocket", "Pocket007")
body.addObject(pocket8)
pocket8.Profile = sketch16
pocket8.Type = "ThroughAll"
pocket8.Reversed = True

doc.recompute()
